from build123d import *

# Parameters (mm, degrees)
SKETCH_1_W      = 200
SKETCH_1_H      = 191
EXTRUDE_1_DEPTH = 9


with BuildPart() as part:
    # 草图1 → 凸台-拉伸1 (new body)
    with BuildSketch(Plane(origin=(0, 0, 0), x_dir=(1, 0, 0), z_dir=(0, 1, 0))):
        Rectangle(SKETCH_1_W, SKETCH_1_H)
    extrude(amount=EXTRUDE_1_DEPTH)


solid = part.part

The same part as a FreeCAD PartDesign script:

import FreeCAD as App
import Part
import Sketcher
from FreeCAD import Vector


def add_polygon(sketch, points):
    """Adds a closed chain of lines whose ends are joined by coincident constraints."""
    first, n = sketch.GeometryCount, len(points)
    for a, b in zip(points, points[1:] + points[:1]):
        sketch.addGeometry(Part.LineSegment(App.Vector(*a, 0), App.Vector(*b, 0)), False)
    for i in range(n):
        sketch.addConstraint(Sketcher.Constraint("Coincident", first + i, 2, first + (i + 1) % n, 1))

doc = App.newDocument("Part")
body = doc.addObject("PartDesign::Body", "Body")

sketch1 = body.newObject("Sketcher::SketchObject", "Sketch")
sketch1.AttachmentSupport = (doc.getObject("XZ_Plane"), [""])
sketch1.MapMode = "FlatFace"
add_polygon(sketch1, [(-100, -96), (-100, 96), (100, 96), (100, -96)])
sketch1.addConstraint(Sketcher.Constraint("Vertical", 0))
sketch1.addConstraint(Sketcher.Constraint("Horizontal", 1))
sketch1.addConstraint(Sketcher.Constraint("Vertical", 2))
sketch1.addConstraint(Sketcher.Constraint("Horizontal", 3))
sketch1.addConstraint(Sketcher.Constraint("Symmetric", 0, 2, 2, 2, -1, 1))
sketch1.addConstraint(Sketcher.Constraint("DistanceX", 1, 1, 1, 2, 200.0))
sketch1.addConstraint(Sketcher.Constraint("DistanceY", 0, 1, 0, 2, 191.0))
pad1 = body.newObject("PartDesign::Pad", "Pad")
pad1.Profile = sketch1
pad1.Length = 9
pad1.Reversed = True

doc.recompute()
